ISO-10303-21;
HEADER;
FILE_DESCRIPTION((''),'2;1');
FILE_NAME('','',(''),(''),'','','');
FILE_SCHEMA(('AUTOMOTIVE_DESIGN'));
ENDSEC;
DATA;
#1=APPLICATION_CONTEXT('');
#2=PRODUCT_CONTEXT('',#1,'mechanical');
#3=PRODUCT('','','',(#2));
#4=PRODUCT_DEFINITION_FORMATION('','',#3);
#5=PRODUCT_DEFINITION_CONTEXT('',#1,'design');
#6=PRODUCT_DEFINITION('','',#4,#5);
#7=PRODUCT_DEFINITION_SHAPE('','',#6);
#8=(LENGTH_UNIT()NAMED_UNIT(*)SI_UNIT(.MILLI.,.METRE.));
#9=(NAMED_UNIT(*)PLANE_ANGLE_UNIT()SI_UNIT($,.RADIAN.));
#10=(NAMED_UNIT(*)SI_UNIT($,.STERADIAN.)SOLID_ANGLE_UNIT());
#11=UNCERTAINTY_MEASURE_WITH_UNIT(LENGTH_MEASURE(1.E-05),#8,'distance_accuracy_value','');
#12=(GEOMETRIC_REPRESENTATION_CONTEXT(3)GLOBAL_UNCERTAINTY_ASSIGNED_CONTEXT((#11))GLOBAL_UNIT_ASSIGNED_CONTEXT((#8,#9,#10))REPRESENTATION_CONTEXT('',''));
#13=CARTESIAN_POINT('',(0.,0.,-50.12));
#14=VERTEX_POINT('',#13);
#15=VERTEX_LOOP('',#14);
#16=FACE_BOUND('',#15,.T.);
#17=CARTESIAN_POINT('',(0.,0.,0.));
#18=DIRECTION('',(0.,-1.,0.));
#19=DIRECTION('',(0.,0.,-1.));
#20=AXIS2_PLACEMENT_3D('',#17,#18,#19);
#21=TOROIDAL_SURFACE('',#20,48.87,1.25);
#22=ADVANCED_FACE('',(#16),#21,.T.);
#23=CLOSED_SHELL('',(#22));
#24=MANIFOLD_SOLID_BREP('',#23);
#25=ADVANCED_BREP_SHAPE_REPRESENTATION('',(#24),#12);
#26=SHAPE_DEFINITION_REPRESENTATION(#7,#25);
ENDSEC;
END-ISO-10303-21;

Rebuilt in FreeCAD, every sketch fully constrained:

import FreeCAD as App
import Part
import Sketcher

V = App.Vector
Q = App.Units.Quantity

doc = App.newDocument("Part")
body = doc.addObject("PartDesign::Body", "Body")

sketch1 = body.newObject("Sketcher::SketchObject", "Sketch")
sketch1.AttachmentSupport = (doc.getObject("XY_Plane"), [""])
sketch1.MapMode = "FlatFace"
sketch1.addGeometry(Part.Circle(V(-48.87, 0, 0), V(0, 0, 1), 1.25), False)
sketch1.addConstraint([
    Sketcher.Constraint("PointOnObject", 0, 3, -1),
    Sketcher.Constraint("Diameter", 0, Q("2.5 mm")),
    Sketcher.Constraint("DistanceX", 0, 3, -1, 1, Q("48.87 mm")),
])
revolution = body.newObject("PartDesign::Revolution", "Revolution")
revolution.Profile = sketch1
revolution.ReferenceAxis = (sketch1, ["V_Axis"])
revolution.Angle = 360

doc.recompute()
